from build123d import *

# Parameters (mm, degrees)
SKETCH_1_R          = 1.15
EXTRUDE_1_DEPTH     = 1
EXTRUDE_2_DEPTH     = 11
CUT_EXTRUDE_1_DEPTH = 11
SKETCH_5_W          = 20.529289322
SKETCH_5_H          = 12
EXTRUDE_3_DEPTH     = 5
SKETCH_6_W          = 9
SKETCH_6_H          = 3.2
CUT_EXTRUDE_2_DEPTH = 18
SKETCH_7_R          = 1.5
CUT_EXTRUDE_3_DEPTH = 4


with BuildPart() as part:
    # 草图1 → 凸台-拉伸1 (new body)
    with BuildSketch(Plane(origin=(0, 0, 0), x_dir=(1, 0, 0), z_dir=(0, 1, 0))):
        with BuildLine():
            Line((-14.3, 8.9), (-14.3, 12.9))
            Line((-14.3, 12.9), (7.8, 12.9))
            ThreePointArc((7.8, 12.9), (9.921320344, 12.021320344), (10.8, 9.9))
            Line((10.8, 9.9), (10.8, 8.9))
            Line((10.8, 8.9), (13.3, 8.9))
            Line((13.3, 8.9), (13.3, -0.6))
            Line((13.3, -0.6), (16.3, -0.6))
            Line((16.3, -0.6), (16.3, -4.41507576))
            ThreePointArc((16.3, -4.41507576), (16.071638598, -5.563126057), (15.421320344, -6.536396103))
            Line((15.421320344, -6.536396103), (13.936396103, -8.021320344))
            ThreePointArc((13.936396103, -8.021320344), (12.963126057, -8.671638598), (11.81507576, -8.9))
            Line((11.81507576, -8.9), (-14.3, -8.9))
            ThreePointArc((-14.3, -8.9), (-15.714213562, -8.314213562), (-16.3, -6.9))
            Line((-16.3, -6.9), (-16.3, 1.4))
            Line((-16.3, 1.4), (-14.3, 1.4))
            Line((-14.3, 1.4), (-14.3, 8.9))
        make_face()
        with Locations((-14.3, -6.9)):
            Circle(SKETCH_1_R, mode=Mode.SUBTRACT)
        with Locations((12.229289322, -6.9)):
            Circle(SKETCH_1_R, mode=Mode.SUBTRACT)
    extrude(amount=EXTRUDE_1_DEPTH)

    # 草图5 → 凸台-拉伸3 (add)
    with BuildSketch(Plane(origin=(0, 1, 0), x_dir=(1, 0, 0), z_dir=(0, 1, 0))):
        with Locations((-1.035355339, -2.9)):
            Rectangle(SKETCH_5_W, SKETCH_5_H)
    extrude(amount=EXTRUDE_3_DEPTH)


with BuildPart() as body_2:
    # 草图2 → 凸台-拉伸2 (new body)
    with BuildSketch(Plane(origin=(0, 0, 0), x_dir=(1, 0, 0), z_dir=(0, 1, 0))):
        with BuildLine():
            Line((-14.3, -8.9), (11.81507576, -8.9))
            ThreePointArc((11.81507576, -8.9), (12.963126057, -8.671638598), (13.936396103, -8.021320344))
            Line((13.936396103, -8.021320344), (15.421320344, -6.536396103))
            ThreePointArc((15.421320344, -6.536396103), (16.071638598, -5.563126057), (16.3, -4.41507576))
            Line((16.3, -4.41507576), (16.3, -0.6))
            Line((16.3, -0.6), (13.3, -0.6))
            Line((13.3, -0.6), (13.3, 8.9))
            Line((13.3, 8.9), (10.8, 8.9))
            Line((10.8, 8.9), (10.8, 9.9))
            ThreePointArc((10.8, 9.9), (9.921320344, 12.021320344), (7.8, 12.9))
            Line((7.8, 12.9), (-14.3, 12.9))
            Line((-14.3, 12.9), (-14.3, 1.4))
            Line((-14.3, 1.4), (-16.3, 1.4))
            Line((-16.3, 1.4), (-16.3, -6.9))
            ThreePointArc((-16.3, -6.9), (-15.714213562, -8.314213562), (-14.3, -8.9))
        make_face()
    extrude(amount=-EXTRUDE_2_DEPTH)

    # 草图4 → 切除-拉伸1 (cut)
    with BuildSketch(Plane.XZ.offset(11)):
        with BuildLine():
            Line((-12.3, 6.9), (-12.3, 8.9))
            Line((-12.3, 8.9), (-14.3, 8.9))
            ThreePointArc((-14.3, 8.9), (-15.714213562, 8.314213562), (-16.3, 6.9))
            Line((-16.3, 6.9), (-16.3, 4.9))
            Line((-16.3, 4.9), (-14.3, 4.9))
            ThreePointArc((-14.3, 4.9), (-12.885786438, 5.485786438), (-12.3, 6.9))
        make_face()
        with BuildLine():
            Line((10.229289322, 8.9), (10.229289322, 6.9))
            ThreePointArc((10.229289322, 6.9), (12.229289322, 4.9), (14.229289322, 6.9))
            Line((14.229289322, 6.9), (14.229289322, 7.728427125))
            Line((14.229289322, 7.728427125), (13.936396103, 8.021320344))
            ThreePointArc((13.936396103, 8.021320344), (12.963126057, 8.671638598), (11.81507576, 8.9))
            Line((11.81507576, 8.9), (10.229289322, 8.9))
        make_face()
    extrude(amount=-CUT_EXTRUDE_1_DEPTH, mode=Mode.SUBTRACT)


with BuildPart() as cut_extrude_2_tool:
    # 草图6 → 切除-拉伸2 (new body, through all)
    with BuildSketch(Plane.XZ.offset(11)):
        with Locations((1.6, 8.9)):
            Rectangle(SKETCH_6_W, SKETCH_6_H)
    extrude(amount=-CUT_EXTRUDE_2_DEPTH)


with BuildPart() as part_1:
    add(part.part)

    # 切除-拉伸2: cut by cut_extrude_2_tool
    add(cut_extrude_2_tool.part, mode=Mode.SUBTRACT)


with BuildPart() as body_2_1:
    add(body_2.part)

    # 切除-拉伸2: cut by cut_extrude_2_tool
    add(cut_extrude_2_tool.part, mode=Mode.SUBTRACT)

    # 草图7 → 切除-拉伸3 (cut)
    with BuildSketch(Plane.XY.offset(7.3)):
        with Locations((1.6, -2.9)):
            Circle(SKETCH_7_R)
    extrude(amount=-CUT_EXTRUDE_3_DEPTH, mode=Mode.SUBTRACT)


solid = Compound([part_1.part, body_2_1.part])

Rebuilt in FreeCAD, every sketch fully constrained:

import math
import FreeCAD as App
import Part
import Sketcher
from FreeCAD import Vector
Q = App.Units.Quantity


def add_polygon(sketch, points):
    """Adds a closed chain of lines whose ends are joined by coincident constraints."""
    first, n = sketch.GeometryCount, len(points)
    for a, b in zip(points, points[1:] + points[:1]):
        sketch.addGeometry(Part.LineSegment(App.Vector(*a, 0), App.Vector(*b, 0)), False)
    for i in range(n):
        sketch.addConstraint(Sketcher.Constraint("Coincident", first + i, 2, first + (i + 1) % n, 1))

doc = App.newDocument("Part")
params = doc.addObject("Spreadsheet::Sheet", "Params")
for row, (alias, value) in enumerate([
    ("sketch1_radius", "2 mm"),
    ("sketch1_radius2", "3 mm"),
    ("sketch1_diameter", "2.3 mm"),
    ("sketch1_height", "1 mm"),
    ("sketch1_width", "22.1 mm"),
    ("pad1_length", "1 mm"),
    ("sketch2_height", "12 mm"),
    ("pad2_length", "5 mm"),
    ("sketch3_radius", "3 mm"),
    ("sketch3_radius2", "2 mm"),
    ("sketch3_height", "1 mm"),
    ("sketch3_width", "2.5 mm"),
    ("sketch3_width2", "22.1 mm"),
    ("pad3_length", "11 mm"),
    ("sketch4_radius", "2 mm"),
    ("sketch4_radius2", "3 mm"),
    ("pocket1_length", "11 mm"),
    ("sketch5_width", "9 mm"),
    ("sketch5_height", "3.2 mm"),
    ("pad4_length", "18 mm"),
    ("sketch6_diameter", "3 mm"),
    ("pocket2_length", "4 mm"),
], start=1):
    params.set(f"A{row}", alias)
    params.set(f"B{row}", "=" + value)
    params.setAlias(f"B{row}", alias)

body = doc.addObject("PartDesign::Body", "Body")

# Sketch on XZ plane
sketch1 = body.newObject("Sketcher::SketchObject", "Sketch")
sketch1.AttachmentSupport = (doc.getObject("XZ_Plane"), [""])
sketch1.MapMode = "FlatFace"
sketch1.addGeometry([
    Part.LineSegment(Vector(7.8, -12.9, 0), Vector(-14.3, -12.9, 0)),  # 0
    Part.LineSegment(Vector(-14.3, -12.9, 0), Vector(-14.3, -1.4, 0)),  # 1
    Part.LineSegment(Vector(-14.3, -1.4, 0), Vector(-16.3, -1.4, 0)),  # 2
    Part.LineSegment(Vector(-16.3, -1.4, 0), Vector(-16.3, 6.9, 0)),  # 3
    Part.ArcOfCircle(Part.Circle(Vector(-14.3, 6.9, 0), Vector(0, 0, 1), 2), math.radians(90), math.radians(180)),  # 4
    Part.LineSegment(Vector(-14.3, 8.9, 0), Vector(11.8, 8.9, 0)),  # 5
    Part.ArcOfCircle(Part.Circle(Vector(11.8, 5.9, 0), Vector(0, 0, 1), 3), math.radians(45), math.radians(90)),  # 6
    Part.LineSegment(Vector(13.9, 8, 0), Vector(15.4, 6.5, 0)),  # 7
    Part.ArcOfCircle(Part.Circle(Vector(13.3, 4.4, 0), Vector(0, 0, 1), 3), math.radians(0), math.radians(45)),  # 8
    Part.LineSegment(Vector(16.3, 4.4, 0), Vector(16.3, 0.6, 0)),  # 9
    Part.LineSegment(Vector(16.3, 0.6, 0), Vector(13.3, 0.6, 0)),  # 10
    Part.LineSegment(Vector(13.3, 0.6, 0), Vector(13.3, -8.9, 0)),  # 11
    Part.LineSegment(Vector(13.3, -8.9, 0), Vector(10.8, -8.9, 0)),  # 12
    Part.LineSegment(Vector(10.8, -8.9, 0), Vector(10.8, -9.9, 0)),  # 13
    Part.ArcOfCircle(Part.Circle(Vector(7.8, -9.9, 0), Vector(0, 0, 1), 3), math.radians(-90), math.radians(0)),  # 14
    Part.Circle(Vector(12.2, 6.9, 0), Vector(0, 0, 1), 1.1),  # 15
    Part.Circle(Vector(-14.3, 6.9, 0), Vector(0, 0, 1), 1.1),  # 16
], False)
sketch1.addConstraint([
    Sketcher.Constraint("Coincident", 0, 2, 1, 1),
    Sketcher.Constraint("Coincident", 1, 2, 2, 1),
    Sketcher.Constraint("Coincident", 2, 2, 3, 1),
    Sketcher.Constraint("Tangent", 3, 2, 4, 2),
    Sketcher.Constraint("Tangent", 4, 1, 5, 1),
    Sketcher.Constraint("Tangent", 5, 2, 6, 2),
    Sketcher.Constraint("Tangent", 6, 1, 7, 1),
    Sketcher.Constraint("Tangent", 7, 2, 8, 2),
    Sketcher.Constraint("Tangent", 8, 1, 9, 1),
    Sketcher.Constraint("Coincident", 9, 2, 10, 1),
    Sketcher.Constraint("Coincident", 10, 2, 11, 1),
    Sketcher.Constraint("Coincident", 11, 2, 12, 1),
    Sketcher.Constraint("Coincident", 12, 2, 13, 1),
    Sketcher.Constraint("Tangent", 13, 2, 14, 2),
    Sketcher.Constraint("Tangent", 14, 1, 0, 1),
    Sketcher.Constraint("Horizontal", 0),
    Sketcher.Constraint("Vertical", 1),
    Sketcher.Constraint("Horizontal", 2),
    Sketcher.Constraint("Vertical", 3),
    Sketcher.Constraint("Horizontal", 5),
    Sketcher.Constraint("Vertical", 9),
    Sketcher.Constraint("Horizontal", 10),
    Sketcher.Constraint("Vertical", 11),
    Sketcher.Constraint("Horizontal", 12),
    Sketcher.Constraint("Vertical", 13),
    Sketcher.Constraint("Coincident", 16, 3, 4, 3),
    Sketcher.Constraint("Equal", 6, 8),
    Sketcher.Constraint("Equal", 8, 14),
    Sketcher.Constraint("Equal", 15, 16),
    Sketcher.Constraint("Horizontal", 4, 3, 15, 3),
    Sketcher.Constraint("Vertical", 16, 3, 0, 2),
    Sketcher.Constraint("Vertical", 8, 3, 10, 2),
    Sketcher.Constraint("Radius", 4, 2.0),
    Sketcher.Constraint("Radius", 6, 3.0),
    Sketcher.Constraint("Diameter", 15, 2.3),
    Sketcher.Constraint("DistanceY", 13, 2, 13, 1, 1.0),
    Sketcher.Constraint("Angle", 7, Q("-45 deg")),
    Sketcher.Constraint("DistanceX", 0, 2, 0, 1, 22.1),
    Sketcher.Constraint("DistanceX", 12, 2, 12, 1, 2.5),
    Sketcher.Constraint("DistanceY", 1, 1, 1, 2, 11.5),
    Sketcher.Constraint("DistanceY", 3, 1, 3, 2, 8.3),
    Sketcher.Constraint("DistanceY", 11, 2, 11, 1, 9.5),
    Sketcher.Constraint("Distance", 7, 2.1),
    Sketcher.Constraint("DistanceX", 4, 3, -1, 1, 14.3),
    Sketcher.Constraint("DistanceY", -1, 1, 4, 3, 6.9),
    Sketcher.Constraint("DistanceX", -1, 1, 15, 3, 12.229289),
])
sketch1.setExpression("Constraints[32]", "Params.sketch1_radius")
sketch1.setExpression("Constraints[33]", "Params.sketch1_radius2")
sketch1.setExpression("Constraints[34]", "Params.sketch1_diameter")
sketch1.setExpression("Constraints[35]", "Params.sketch1_height")
sketch1.setExpression("Constraints[37]", "Params.sketch1_width")
pad1 = body.newObject("PartDesign::Pad", "Pad")
pad1.Profile = sketch1
pad1.setExpression("Length", "Params.pad1_length")
pad1.Reversed = True

# Sketch on XZ plane
sketch2 = body.newObject("Sketcher::SketchObject", "Sketch001")
sketch2.AttachmentSupport = (doc.getObject("XZ_Plane"), [""])
sketch2.MapMode = "FlatFace"
sketch2.AttachmentOffset = App.Placement(Vector(0, 0, -1), App.Rotation())
add_polygon(sketch2, [(-11, -3), (-11, 9), (9, 9), (9, -3)])  # lines 0-3
sketch2.addConstraint([
    Sketcher.Constraint("Vertical", 0),
    Sketcher.Constraint("Horizontal", 1),
    Sketcher.Constraint("Vertical", 2),
    Sketcher.Constraint("Horizontal", 3),
    Sketcher.Constraint("DistanceY", 0, 1, 0, 2, 12.0),
    Sketcher.Constraint("DistanceX", 0, 2, -1, 1, 11.3),
    Sketcher.Constraint("DistanceY", -1, 1, 0, 2, 8.9),
    Sketcher.Constraint("DistanceX", 1, 1, 1, 2, 20.529289),
])
sketch2.setExpression("Constraints[8]", "Params.sketch2_height")
pad2 = body.newObject("PartDesign::Pad", "Pad001")
pad2.Profile = sketch2
pad2.setExpression("Length", "Params.pad2_length")
pad2.Reversed = True
body2 = doc.addObject("PartDesign::Body", "Body001")

# Sketch on XZ plane
sketch3 = body2.newObject("Sketcher::SketchObject", "Sketch002")
sketch3.AttachmentSupport = (doc.getObject("XZ_Plane001"), [""])
sketch3.MapMode = "FlatFace"
sketch3.addGeometry([
    Part.LineSegment(Vector(-14.3, 8.9, 0), Vector(11.8, 8.9, 0)),  # 0
    Part.ArcOfCircle(Part.Circle(Vector(11.8, 5.9, 0), Vector(0, 0, 1), 3), math.radians(45), math.radians(90)),  # 1
    Part.LineSegment(Vector(13.9, 8, 0), Vector(15.4, 6.5, 0)),  # 2
    Part.ArcOfCircle(Part.Circle(Vector(13.3, 4.4, 0), Vector(0, 0, 1), 3), math.radians(0), math.radians(45)),  # 3
    Part.LineSegment(Vector(16.3, 4.4, 0), Vector(16.3, 0.6, 0)),  # 4
    Part.LineSegment(Vector(16.3, 0.6, 0), Vector(13.3, 0.6, 0)),  # 5
    Part.LineSegment(Vector(13.3, 0.6, 0), Vector(13.3, -8.9, 0)),  # 6
    Part.LineSegment(Vector(13.3, -8.9, 0), Vector(10.8, -8.9, 0)),  # 7
    Part.LineSegment(Vector(10.8, -8.9, 0), Vector(10.8, -9.9, 0)),  # 8
    Part.ArcOfCircle(Part.Circle(Vector(7.8, -9.9, 0), Vector(0, 0, 1), 3), math.radians(-90), math.radians(0)),  # 9
    Part.LineSegment(Vector(7.8, -12.9, 0), Vector(-14.3, -12.9, 0)),  # 10
    Part.LineSegment(Vector(-14.3, -12.9, 0), Vector(-14.3, -1.4, 0)),  # 11
    Part.LineSegment(Vector(-14.3, -1.4, 0), Vector(-16.3, -1.4, 0)),  # 12
    Part.LineSegment(Vector(-16.3, -1.4, 0), Vector(-16.3, 6.9, 0)),  # 13
    Part.ArcOfCircle(Part.Circle(Vector(-14.3, 6.9, 0), Vector(0, 0, 1), 2), math.radians(90), math.radians(180)),  # 14
], False)
sketch3.addConstraint([
    Sketcher.Constraint("Tangent", 0, 2, 1, 2),
    Sketcher.Constraint("Tangent", 1, 1, 2, 1),
    Sketcher.Constraint("Tangent", 2, 2, 3, 2),
    Sketcher.Constraint("Tangent", 3, 1, 4, 1),
    Sketcher.Constraint("Coincident", 4, 2, 5, 1),
    Sketcher.Constraint("Coincident", 5, 2, 6, 1),
    Sketcher.Constraint("Coincident", 6, 2, 7, 1),
    Sketcher.Constraint("Coincident", 7, 2, 8, 1),
    Sketcher.Constraint("Tangent", 8, 2, 9, 2),
    Sketcher.Constraint("Tangent", 9, 1, 10, 1),
    Sketcher.Constraint("Coincident", 10, 2, 11, 1),
    Sketcher.Constraint("Coincident", 11, 2, 12, 1),
    Sketcher.Constraint("Coincident", 12, 2, 13, 1),
    Sketcher.Constraint("Tangent", 13, 2, 14, 2),
    Sketcher.Constraint("Tangent", 14, 1, 0, 1),
    Sketcher.Constraint("Horizontal", 0),
    Sketcher.Constraint("Vertical", 4),
    Sketcher.Constraint("Horizontal", 5),
    Sketcher.Constraint("Vertical", 6),
    Sketcher.Constraint("Horizontal", 7),
    Sketcher.Constraint("Vertical", 8),
    Sketcher.Constraint("Horizontal", 10),
    Sketcher.Constraint("Vertical", 11),
    Sketcher.Constraint("Horizontal", 12),
    Sketcher.Constraint("Vertical", 13),
    Sketcher.Constraint("Equal", 1, 3),
    Sketcher.Constraint("Equal", 3, 9),
    Sketcher.Constraint("Vertical", 3, 3, 5, 2),
    Sketcher.Constraint("Vertical", 14, 3, 10, 2),
    Sketcher.Constraint("Radius", 1, 3.0),
    Sketcher.Constraint("Radius", 14, 2.0),
    Sketcher.Constraint("DistanceY", 8, 2, 8, 1, 1.0),
    Sketcher.Constraint("Angle", 2, Q("-45 deg")),
    Sketcher.Constraint("DistanceX", 7, 2, 7, 1, 2.5),
    Sketcher.Constraint("DistanceX", 10, 2, 10, 1, 22.1),
    Sketcher.Constraint("DistanceY", 6, 2, 6, 1, 9.5),
    Sketcher.Constraint("DistanceY", 11, 1, 11, 2, 11.5),
    Sketcher.Constraint("DistanceY", 13, 1, 13, 2, 8.3),
    Sketcher.Constraint("Distance", 2, 2.1),
    Sketcher.Constraint("DistanceY", -1, 1, 1, 3, 5.9),
    Sketcher.Constraint("DistanceX", -1, 1, 3, 3, 13.3),
])
sketch3.setExpression("Constraints[29]", "Params.sketch3_radius")
sketch3.setExpression("Constraints[30]", "Params.sketch3_radius2")
sketch3.setExpression("Constraints[31]", "Params.sketch3_height")
sketch3.setExpression("Constraints[33]", "Params.sketch3_width")
sketch3.setExpression("Constraints[34]", "Params.sketch3_width2")
pad3 = body2.newObject("PartDesign::Pad", "Pad002")
pad3.Profile = sketch3
pad3.setExpression("Length", "Params.pad3_length")

# Sketch on XZ plane
sketch4 = body2.newObject("Sketcher::SketchObject", "Sketch003")
sketch4.AttachmentSupport = (doc.getObject("XZ_Plane001"), [""])
sketch4.MapMode = "FlatFace"
sketch4.AttachmentOffset = App.Placement(Vector(0, 0, 11), App.Rotation())
sketch4.addGeometry([
    Part.LineSegment(Vector(-12.3, 6.9, 0), Vector(-12.3, 8.9, 0)),  # 0
    Part.LineSegment(Vector(-12.3, 8.9, 0), Vector(-14.3, 8.9, 0)),  # 1
    Part.ArcOfCircle(Part.Circle(Vector(-14.3, 6.9, 0), Vector(0, 0, 1), 2), math.radians(90), math.radians(180)),  # 2
    Part.LineSegment(Vector(-16.3, 6.9, 0), Vector(-16.3, 4.9, 0)),  # 3
    Part.LineSegment(Vector(-16.3, 4.9, 0), Vector(-14.3, 4.9, 0)),  # 4
    Part.ArcOfCircle(Part.Circle(Vector(-14.3, 6.9, 0), Vector(0, 0, 1), 2), math.radians(-90), math.radians(0)),  # 5
    Part.LineSegment(Vector(10.23, 8.9, 0), Vector(10.23, 6.9, 0)),  # 6
    Part.ArcOfCircle(Part.Circle(Vector(12.23, 6.9, 0), Vector(0, 0, 1), 2), math.radians(180), math.radians(360)),  # 7
    Part.LineSegment(Vector(14.23, 6.9, 0), Vector(14.23, 7.73, 0)),  # 8
    Part.LineSegment(Vector(14.23, 7.73, 0), Vector(13.94, 8.02, 0)),  # 9
    Part.ArcOfCircle(Part.Circle(Vector(11.82, 5.9, 0), Vector(0, 0, 1), 3), math.radians(45), math.radians(90)),  # 10
    Part.LineSegment(Vector(11.82, 8.9, 0), Vector(10.23, 8.9, 0)),  # 11
], False)
sketch4.addConstraint([
    Sketcher.Constraint("Coincident", 0, 2, 1, 1),
    Sketcher.Constraint("Tangent", 1, 2, 2, 1),
    Sketcher.Constraint("Tangent", 2, 2, 3, 1),
    Sketcher.Constraint("Coincident", 3, 2, 4, 1),
    Sketcher.Constraint("Tangent", 4, 2, 5, 1),
    Sketcher.Constraint("Tangent", 5, 2, 0, 1),
    Sketcher.Constraint("Tangent", 6, 2, 7, 1),
    Sketcher.Constraint("Tangent", 7, 2, 8, 1),
    Sketcher.Constraint("Coincident", 8, 2, 9, 1),
    Sketcher.Constraint("Tangent", 9, 2, 10, 1),
    Sketcher.Constraint("Tangent", 10, 2, 11, 1),
    Sketcher.Constraint("Coincident", 11, 2, 6, 1),
    Sketcher.Constraint("Vertical", 0),
    Sketcher.Constraint("Horizontal", 1),
    Sketcher.Constraint("Vertical", 3),
    Sketcher.Constraint("Horizontal", 4),
    Sketcher.Constraint("Vertical", 6),
    Sketcher.Constraint("Vertical", 8),
    Sketcher.Constraint("Horizontal", 11),
    Sketcher.Constraint("Coincident", 5, 3, 2, 3),
    Sketcher.Constraint("Equal", 2, 5),
    Sketcher.Constraint("Equal", 5, 7),
    Sketcher.Constraint("Horizontal", 5, 3, 7, 3),
    Sketcher.Constraint("Horizontal", 1, 2, 10, 2),
    Sketcher.Constraint("Radius", 2, 2.0),
    Sketcher.Constraint("Radius", 10, 3.0),
    Sketcher.Constraint("Angle", 9, Q("135 deg")),
    Sketcher.Constraint("DistanceX", 2, 3, -1, 1, 14.3),
    Sketcher.Constraint("DistanceY", -1, 1, 2, 3, 6.9),
    Sketcher.Constraint("DistanceX", 11, 2, 11, 1, 1.585786),
    Sketcher.Constraint("DistanceX", -1, 1, 7, 3, 12.229289),
])
sketch4.setExpression("Constraints[24]", "Params.sketch4_radius")
sketch4.setExpression("Constraints[25]", "Params.sketch4_radius2")
pocket1 = body2.newObject("PartDesign::Pocket", "Pocket")
pocket1.Profile = sketch4
pocket1.setExpression("Length", "Params.pocket1_length")
body3 = doc.addObject("PartDesign::Body", "Body002")

# Sketch on XZ plane
sketch5 = body3.newObject("Sketcher::SketchObject", "Sketch004")
sketch5.AttachmentSupport = (doc.getObject("XZ_Plane002"), [""])
sketch5.MapMode = "FlatFace"
sketch5.AttachmentOffset = App.Placement(Vector(0, 0, 11), App.Rotation())
add_polygon(sketch5, [(-2.9, 10.5), (-2.9, 7.3), (6.1, 7.3), (6.1, 10.5)])  # lines 0-3
sketch5.addConstraint([
    Sketcher.Constraint("Vertical", 0),
    Sketcher.Constraint("Horizontal", 1),
    Sketcher.Constraint("Vertical", 2),
    Sketcher.Constraint("Horizontal", 3),
    Sketcher.Constraint("DistanceX", 1, 1, 1, 2, 9.0),
    Sketcher.Constraint("DistanceY", 0, 2, 0, 1, 3.2),
    Sketcher.Constraint("DistanceX", 0, 2, -1, 1, 2.9),
    Sketcher.Constraint("DistanceY", -1, 1, 0, 2, 7.3),
])
sketch5.setExpression("Constraints[8]", "Params.sketch5_width")
sketch5.setExpression("Constraints[9]", "Params.sketch5_height")
pad4 = body3.newObject("PartDesign::Pad", "Pad003")
pad4.Profile = sketch5
pad4.setExpression("Length", "Params.pad4_length")
pad4.Reversed = True
doc.recompute()

body4 = doc.addObject("PartDesign::Body", "Body003")
body4.BaseFeature = body3
boolean = body.newObject("PartDesign::Boolean", "Boolean")
boolean.Type = "Cut"
boolean.addObjects([body4])
doc.recompute()

boolean2 = body2.newObject("PartDesign::Boolean", "Boolean001")
boolean2.Type = "Cut"
boolean2.addObjects([body3])

# Sketch on XY plane
sketch6 = body2.newObject("Sketcher::SketchObject", "Sketch005")
sketch6.AttachmentSupport = (doc.getObject("XY_Plane001"), [""])
sketch6.MapMode = "FlatFace"
sketch6.AttachmentOffset = App.Placement(Vector(0, 0, 7.3), App.Rotation())
sketch6.addGeometry(Part.Circle(Vector(1.6, -2.9, 0), Vector(0, 0, 1), 1.5), False)
sketch6.addConstraint([
    Sketcher.Constraint("Diameter", 0, 3.0),
    Sketcher.Constraint("DistanceX", -1, 1, 0, 3, 1.6),
    Sketcher.Constraint("DistanceY", 0, 3, -1, 1, 2.9),
])
sketch6.setExpression("Constraints[0]", "Params.sketch6_diameter")
pocket2 = body2.newObject("PartDesign::Pocket", "Pocket001")
pocket2.Profile = sketch6
pocket2.setExpression("Length", "Params.pocket2_length")

doc.recompute()
